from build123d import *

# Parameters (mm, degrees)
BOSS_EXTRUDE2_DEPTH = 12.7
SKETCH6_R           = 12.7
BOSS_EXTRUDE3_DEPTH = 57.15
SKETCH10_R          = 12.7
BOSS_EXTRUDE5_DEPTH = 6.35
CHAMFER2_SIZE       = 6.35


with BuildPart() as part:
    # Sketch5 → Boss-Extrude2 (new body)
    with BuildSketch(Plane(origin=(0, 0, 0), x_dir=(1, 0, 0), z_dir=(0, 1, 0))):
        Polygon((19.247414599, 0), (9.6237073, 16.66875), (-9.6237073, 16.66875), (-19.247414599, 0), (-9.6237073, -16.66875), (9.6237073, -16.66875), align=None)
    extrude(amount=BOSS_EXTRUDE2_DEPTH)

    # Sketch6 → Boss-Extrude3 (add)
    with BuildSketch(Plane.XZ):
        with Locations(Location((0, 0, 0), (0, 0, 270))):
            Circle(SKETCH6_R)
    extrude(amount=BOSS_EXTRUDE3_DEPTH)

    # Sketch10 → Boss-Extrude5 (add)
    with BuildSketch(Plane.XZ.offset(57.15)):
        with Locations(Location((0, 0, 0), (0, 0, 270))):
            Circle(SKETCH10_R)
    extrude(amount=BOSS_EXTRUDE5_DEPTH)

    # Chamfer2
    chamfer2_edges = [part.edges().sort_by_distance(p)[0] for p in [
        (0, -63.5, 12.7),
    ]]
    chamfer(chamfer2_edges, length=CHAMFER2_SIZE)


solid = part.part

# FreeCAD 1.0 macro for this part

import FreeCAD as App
import Part
import Sketcher
from FreeCAD import Vector
Q = App.Units.Quantity


def edges_at(feature, points):
    """Names of the edges that pass closest to the given points."""
    edges = feature.Shape.Edges
    near = lambda p: min(range(len(edges)), key=lambda i: edges[i].distToShape(Part.Vertex(*p))[0])
    return sorted({f"Edge{near(p) + 1}" for p in points})

doc = App.newDocument("Part")
body = doc.addObject("PartDesign::Body", "Body")

# Sketch on XZ plane
sketch1 = body.newObject("Sketcher::SketchObject", "Sketch")
sketch1.AttachmentSupport = (doc.getObject("XZ_Plane"), [""])
sketch1.MapMode = "FlatFace"
sketch1.addGeometry(Part.LineSegment(Vector(19, 0, 0), Vector(10, -17, 0)), False)
sketch1.addGeometry(Part.LineSegment(Vector(10, -17, 0), Vector(-10, -17, 0)), False)
sketch1.addGeometry(Part.LineSegment(Vector(-10, -17, 0), Vector(-19, 0, 0)), False)
sketch1.addGeometry(Part.LineSegment(Vector(-19, 0, 0), Vector(-10, 17, 0)), False)
sketch1.addGeometry(Part.LineSegment(Vector(-10, 17, 0), Vector(10, 17, 0)), False)
sketch1.addGeometry(Part.LineSegment(Vector(10, 17, 0), Vector(19, 0, 0)), False)
sketch1.addConstraint(Sketcher.Constraint("Coincident", 0, 2, 1, 1))
sketch1.addConstraint(Sketcher.Constraint("Coincident", 1, 2, 2, 1))
sketch1.addConstraint(Sketcher.Constraint("Coincident", 2, 2, 3, 1))
sketch1.addConstraint(Sketcher.Constraint("Coincident", 3, 2, 4, 1))
sketch1.addConstraint(Sketcher.Constraint("Coincident", 4, 2, 5, 1))
sketch1.addConstraint(Sketcher.Constraint("Coincident", 5, 2, 0, 1))
sketch1.addConstraint(Sketcher.Constraint("Horizontal", 1))
sketch1.addConstraint(Sketcher.Constraint("Horizontal", 4))
sketch1.addConstraint(Sketcher.Constraint("Symmetric", 0, 2, 3, 2, -1, 1))
sketch1.addConstraint(Sketcher.Constraint("Symmetric", 2, 2, 5, 2, -1, 1))
sketch1.addConstraint(Sketcher.Constraint("PointOnObject", 2, 2, -1))
sketch1.addConstraint(Sketcher.Constraint("Parallel", 2, 5))
sketch1.addConstraint(Sketcher.Constraint("Vertical", 1, 2, 3, 2))
sketch1.addConstraint(Sketcher.Constraint("Angle", 0, Q("-120 deg")))
sketch1.addConstraint(Sketcher.Constraint("DistanceY", 0, 2, -1, 1, Q("0.65625 in")))
sketch1.addConstraint(Sketcher.Constraint("DistanceX", 1, 2, 1, 1, Q("19.247415 mm")))
pad1 = body.newObject("PartDesign::Pad", "Pad")
pad1.Profile = sketch1
pad1.Length = Q("0.5 in")
pad1.Reversed = True

# Sketch on XZ plane
sketch2 = body.newObject("Sketcher::SketchObject", "Sketch001")
sketch2.AttachmentSupport = (doc.getObject("XZ_Plane"), [""])
sketch2.MapMode = "FlatFace"
sketch2.addGeometry(Part.Circle(Vector(0, 0, 0), Vector(0, 0, 1), 13), False)
sketch2.addConstraint(Sketcher.Constraint("Coincident", 0, 3, -1, 1))
sketch2.addConstraint(Sketcher.Constraint("Diameter", 0, Q("1 in")))
pad2 = body.newObject("PartDesign::Pad", "Pad001")
pad2.Profile = sketch2
pad2.Length = Q("2.25 in")

# Sketch on XZ plane
sketch3 = body.newObject("Sketcher::SketchObject", "Sketch002")
sketch3.AttachmentSupport = (doc.getObject("XZ_Plane"), [""])
sketch3.MapMode = "FlatFace"
sketch3.AttachmentOffset = App.Placement(Vector(0, 0, 2.25 * 25.4), App.Rotation())
sketch3.addGeometry(Part.Circle(Vector(0, 0, 0), Vector(0, 0, 1), 13), False)
sketch3.addConstraint(Sketcher.Constraint("Coincident", 0, 3, -1, 1))
sketch3.addConstraint(Sketcher.Constraint("Diameter", 0, Q("1 in")))
pad3 = body.newObject("PartDesign::Pad", "Pad002")
pad3.Profile = sketch3
pad3.Length = Q("0.25 in")
doc.recompute()

chamfer = body.newObject("PartDesign::Chamfer", "Chamfer")
chamfer.Base = (pad3, edges_at(pad3, [(0, -63.5, 12.7)]))
chamfer.Size = Q("0.25 in")

doc.recompute()
